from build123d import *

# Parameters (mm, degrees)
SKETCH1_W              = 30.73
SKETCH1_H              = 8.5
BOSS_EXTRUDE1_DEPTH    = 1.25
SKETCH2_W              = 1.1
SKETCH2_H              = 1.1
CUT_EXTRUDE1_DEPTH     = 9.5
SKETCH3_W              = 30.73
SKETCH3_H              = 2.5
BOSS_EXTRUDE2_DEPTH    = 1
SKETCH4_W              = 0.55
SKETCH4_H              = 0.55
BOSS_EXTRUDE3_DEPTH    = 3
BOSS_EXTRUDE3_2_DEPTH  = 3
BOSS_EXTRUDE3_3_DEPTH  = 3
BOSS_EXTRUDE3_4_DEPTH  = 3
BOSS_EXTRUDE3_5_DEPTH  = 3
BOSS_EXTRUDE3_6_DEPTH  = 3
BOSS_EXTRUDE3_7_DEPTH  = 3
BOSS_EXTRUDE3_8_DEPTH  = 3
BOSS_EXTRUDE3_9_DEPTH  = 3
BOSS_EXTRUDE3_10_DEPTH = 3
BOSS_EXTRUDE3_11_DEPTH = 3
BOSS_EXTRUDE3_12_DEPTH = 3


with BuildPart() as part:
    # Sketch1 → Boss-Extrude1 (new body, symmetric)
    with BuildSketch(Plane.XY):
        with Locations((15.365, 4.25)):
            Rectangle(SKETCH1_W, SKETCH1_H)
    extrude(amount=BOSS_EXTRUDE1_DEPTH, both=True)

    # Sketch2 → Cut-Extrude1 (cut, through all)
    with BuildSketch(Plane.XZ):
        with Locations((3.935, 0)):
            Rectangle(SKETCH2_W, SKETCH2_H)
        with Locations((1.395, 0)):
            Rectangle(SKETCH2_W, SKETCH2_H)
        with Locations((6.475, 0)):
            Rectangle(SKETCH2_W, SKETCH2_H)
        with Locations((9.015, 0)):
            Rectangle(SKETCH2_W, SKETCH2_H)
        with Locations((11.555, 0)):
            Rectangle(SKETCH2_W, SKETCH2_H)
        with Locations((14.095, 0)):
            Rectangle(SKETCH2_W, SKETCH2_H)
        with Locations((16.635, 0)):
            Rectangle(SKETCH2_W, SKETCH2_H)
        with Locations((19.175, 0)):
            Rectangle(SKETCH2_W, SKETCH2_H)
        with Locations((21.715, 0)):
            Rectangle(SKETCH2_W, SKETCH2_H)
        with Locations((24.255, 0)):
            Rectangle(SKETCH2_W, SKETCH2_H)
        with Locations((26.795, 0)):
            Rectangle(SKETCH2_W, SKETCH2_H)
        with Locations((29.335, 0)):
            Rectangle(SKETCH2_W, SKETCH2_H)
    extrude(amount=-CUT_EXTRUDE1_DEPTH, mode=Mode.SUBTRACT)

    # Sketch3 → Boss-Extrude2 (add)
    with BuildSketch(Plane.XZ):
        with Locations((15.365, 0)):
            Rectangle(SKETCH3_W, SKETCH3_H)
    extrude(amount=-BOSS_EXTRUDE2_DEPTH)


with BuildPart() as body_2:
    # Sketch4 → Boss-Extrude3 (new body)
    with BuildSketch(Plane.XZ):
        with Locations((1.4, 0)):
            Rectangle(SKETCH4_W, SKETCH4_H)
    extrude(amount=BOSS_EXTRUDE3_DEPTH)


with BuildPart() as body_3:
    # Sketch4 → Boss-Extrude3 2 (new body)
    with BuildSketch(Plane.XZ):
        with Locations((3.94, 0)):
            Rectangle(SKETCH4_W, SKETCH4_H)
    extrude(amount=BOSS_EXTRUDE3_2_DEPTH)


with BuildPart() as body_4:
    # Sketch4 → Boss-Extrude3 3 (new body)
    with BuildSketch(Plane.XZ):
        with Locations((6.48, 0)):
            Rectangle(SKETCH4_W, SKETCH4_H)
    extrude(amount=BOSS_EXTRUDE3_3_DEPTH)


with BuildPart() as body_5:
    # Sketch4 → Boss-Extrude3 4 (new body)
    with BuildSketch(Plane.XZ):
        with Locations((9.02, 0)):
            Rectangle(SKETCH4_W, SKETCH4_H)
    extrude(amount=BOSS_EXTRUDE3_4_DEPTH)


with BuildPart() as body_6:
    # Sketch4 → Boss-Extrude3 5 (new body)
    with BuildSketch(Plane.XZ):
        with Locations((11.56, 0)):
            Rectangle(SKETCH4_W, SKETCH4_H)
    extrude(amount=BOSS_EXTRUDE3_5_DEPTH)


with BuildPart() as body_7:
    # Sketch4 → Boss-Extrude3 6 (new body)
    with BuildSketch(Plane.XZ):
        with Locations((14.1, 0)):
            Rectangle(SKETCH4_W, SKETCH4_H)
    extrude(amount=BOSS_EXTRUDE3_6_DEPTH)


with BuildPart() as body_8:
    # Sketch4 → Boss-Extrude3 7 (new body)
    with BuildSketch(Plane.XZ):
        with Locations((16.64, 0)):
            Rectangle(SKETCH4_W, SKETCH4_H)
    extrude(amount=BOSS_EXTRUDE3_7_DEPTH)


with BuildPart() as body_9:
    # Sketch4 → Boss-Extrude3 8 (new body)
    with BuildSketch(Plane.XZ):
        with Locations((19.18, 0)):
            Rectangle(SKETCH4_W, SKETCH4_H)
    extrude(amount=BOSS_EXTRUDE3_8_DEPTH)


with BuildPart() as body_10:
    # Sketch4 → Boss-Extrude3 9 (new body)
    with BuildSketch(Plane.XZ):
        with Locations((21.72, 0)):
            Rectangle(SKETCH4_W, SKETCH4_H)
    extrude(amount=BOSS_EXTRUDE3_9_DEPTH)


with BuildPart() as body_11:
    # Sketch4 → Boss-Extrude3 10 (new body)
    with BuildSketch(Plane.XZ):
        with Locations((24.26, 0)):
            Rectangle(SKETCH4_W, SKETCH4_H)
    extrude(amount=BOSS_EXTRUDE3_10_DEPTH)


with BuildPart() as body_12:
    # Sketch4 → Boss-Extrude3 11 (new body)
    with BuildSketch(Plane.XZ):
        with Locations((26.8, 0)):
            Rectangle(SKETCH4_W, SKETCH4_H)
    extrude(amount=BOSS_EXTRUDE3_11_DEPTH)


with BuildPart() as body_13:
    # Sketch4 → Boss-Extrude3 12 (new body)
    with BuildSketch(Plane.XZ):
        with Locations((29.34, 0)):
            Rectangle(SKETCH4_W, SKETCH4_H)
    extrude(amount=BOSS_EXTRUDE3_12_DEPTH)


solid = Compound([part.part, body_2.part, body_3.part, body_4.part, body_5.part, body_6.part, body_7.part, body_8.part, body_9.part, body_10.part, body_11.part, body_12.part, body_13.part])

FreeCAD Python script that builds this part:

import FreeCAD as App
import Part
import Sketcher
from FreeCAD import Vector

doc = App.newDocument("Part")
params = doc.addObject("Spreadsheet::Sheet", "Params")
for row, (alias, value) in enumerate([
    ("sketch1_height", "8.5 mm"),
    ("sketch1_width", "30.73 mm"),
    ("pad1_length", "2.5 mm"),
    ("sketch2_width", "1.1 mm"),
    ("sketch3_height", "2.5 mm"),
    ("sketch3_width", "30.73 mm"),
    ("pad2_length", "1 mm"),
    ("sketch4_width", "0.55 mm"),
    ("pad3_length", "3 mm"),
    ("sketch5_width", "0.55 mm"),
    ("pad4_length", "3 mm"),
    ("sketch6_width", "0.55 mm"),
    ("pad5_length", "3 mm"),
    ("sketch7_width", "0.55 mm"),
    ("pad6_length", "3 mm"),
    ("sketch8_width", "0.55 mm"),
    ("pad7_length", "3 mm"),
    ("sketch9_width", "0.55 mm"),
    ("pad8_length", "3 mm"),
    ("sketch10_width", "0.55 mm"),
    ("pad9_length", "3 mm"),
    ("sketch11_width", "0.55 mm"),
    ("pad10_length", "3 mm"),
    ("sketch12_width", "0.55 mm"),
    ("pad11_length", "3 mm"),
    ("sketch13_width", "0.55 mm"),
    ("pad12_length", "3 mm"),
    ("sketch14_width", "0.55 mm"),
    ("pad13_length", "3 mm"),
    ("sketch15_width", "0.55 mm"),
    ("pad14_length", "3 mm"),
], start=1):
    params.set(f"A{row}", alias)
    params.set(f"B{row}", "=" + value)
    params.setAlias(f"B{row}", alias)

body = doc.addObject("PartDesign::Body", "Body")

sketch1 = doc.addObject("Sketcher::SketchObject", "Sketch")
body.addObject(sketch1)
sketch1.AttachmentSupport = (doc.XY_Plane, [""])
sketch1.MapMode = "FlatFace"
sketch1.addGeometry([
    Part.LineSegment(Vector(0, 8.5, 0), Vector(0, 0, 0)),
    Part.LineSegment(Vector(0, 0, 0), Vector(30.73, 0, 0)),
    Part.LineSegment(Vector(30.73, 0, 0), Vector(30.73, 8.5, 0)),
    Part.LineSegment(Vector(30.73, 8.5, 0), Vector(0, 8.5, 0)),
], False)
sketch1.addConstraint([
    Sketcher.Constraint("Coincident", 0, 2, 1, 1),
    Sketcher.Constraint("Coincident", 1, 2, 2, 1),
    Sketcher.Constraint("Coincident", 2, 2, 3, 1),
    Sketcher.Constraint("Coincident", 3, 2, 0, 1),
    Sketcher.Constraint("Vertical", 0),
    Sketcher.Constraint("Horizontal", 1),
    Sketcher.Constraint("Vertical", 2),
    Sketcher.Constraint("Horizontal", 3),
    Sketcher.Constraint("Coincident", 0, 2, -1, 1),
    Sketcher.Constraint("DistanceY", 0, 2, 0, 1, 8.5),
    Sketcher.Constraint("DistanceX", 1, 1, 1, 2, 30.73),
])
sketch1.setExpression("Constraints[9]", "Params.sketch1_height")
sketch1.setExpression("Constraints[10]", "Params.sketch1_width")
pad1 = doc.addObject("PartDesign::Pad", "Pad")
body.addObject(pad1)
pad1.Profile = sketch1
pad1.setExpression("Length", "Params.pad1_length")
pad1.Midplane = True

sketch2 = doc.addObject("Sketcher::SketchObject", "Sketch001")
body.addObject(sketch2)
sketch2.AttachmentSupport = (doc.XZ_Plane, [""])
sketch2.MapMode = "FlatFace"
sketch2.addGeometry([
    Part.LineSegment(Vector(3.385, 0.55, 0), Vector(3.385, -0.55, 0)),
    Part.LineSegment(Vector(3.385, -0.55, 0), Vector(4.485, -0.55, 0)),
    Part.LineSegment(Vector(4.485, -0.55, 0), Vector(4.485, 0.55, 0)),
    Part.LineSegment(Vector(4.485, 0.55, 0), Vector(3.385, 0.55, 0)),
    Part.LineSegment(Vector(0.845, 0.55, 0), Vector(0.845, -0.55, 0)),
    Part.LineSegment(Vector(0.845, -0.55, 0), Vector(1.945, -0.55, 0)),
    Part.LineSegment(Vector(1.945, -0.55, 0), Vector(1.945, 0.55, 0)),
    Part.LineSegment(Vector(1.945, 0.55, 0), Vector(0.845, 0.55, 0)),
    Part.LineSegment(Vector(5.925, 0.55, 0), Vector(5.925, -0.55, 0)),
    Part.LineSegment(Vector(5.925, -0.55, 0), Vector(7.025, -0.55, 0)),
    Part.LineSegment(Vector(7.025, -0.55, 0), Vector(7.025, 0.55, 0)),
    Part.LineSegment(Vector(7.025, 0.55, 0), Vector(5.925, 0.55, 0)),
    Part.LineSegment(Vector(8.465, 0.55, 0), Vector(8.465, -0.55, 0)),
    Part.LineSegment(Vector(8.465, -0.55, 0), Vector(9.565, -0.55, 0)),
    Part.LineSegment(Vector(9.565, -0.55, 0), Vector(9.565, 0.55, 0)),
    Part.LineSegment(Vector(9.565, 0.55, 0), Vector(8.465, 0.55, 0)),
    Part.LineSegment(Vector(11.005, 0.55, 0), Vector(11.005, -0.55, 0)),
    Part.LineSegment(Vector(11.005, -0.55, 0), Vector(12.105, -0.55, 0)),
    Part.LineSegment(Vector(12.105, -0.55, 0), Vector(12.105, 0.55, 0)),
    Part.LineSegment(Vector(12.105, 0.55, 0), Vector(11.005, 0.55, 0)),
    Part.LineSegment(Vector(13.545, 0.55, 0), Vector(13.545, -0.55, 0)),
    Part.LineSegment(Vector(13.545, -0.55, 0), Vector(14.645, -0.55, 0)),
    Part.LineSegment(Vector(14.645, -0.55, 0), Vector(14.645, 0.55, 0)),
    Part.LineSegment(Vector(14.645, 0.55, 0), Vector(13.545, 0.55, 0)),
    Part.LineSegment(Vector(16.085, 0.55, 0), Vector(16.085, -0.55, 0)),
    Part.LineSegment(Vector(16.085, -0.55, 0), Vector(17.185, -0.55, 0)),
    Part.LineSegment(Vector(17.185, -0.55, 0), Vector(17.185, 0.55, 0)),
    Part.LineSegment(Vector(17.185, 0.55, 0), Vector(16.085, 0.55, 0)),
    Part.LineSegment(Vector(18.625, 0.55, 0), Vector(18.625, -0.55, 0)),
    Part.LineSegment(Vector(18.625, -0.55, 0), Vector(19.725, -0.55, 0)),
    Part.LineSegment(Vector(19.725, -0.55, 0), Vector(19.725, 0.55, 0)),
    Part.LineSegment(Vector(19.725, 0.55, 0), Vector(18.625, 0.55, 0)),
    Part.LineSegment(Vector(21.165, 0.55, 0), Vector(21.165, -0.55, 0)),
    Part.LineSegment(Vector(21.165, -0.55, 0), Vector(22.265, -0.55, 0)),
    Part.LineSegment(Vector(22.265, -0.55, 0), Vector(22.265, 0.55, 0)),
    Part.LineSegment(Vector(22.265, 0.55, 0), Vector(21.165, 0.55, 0)),
    Part.LineSegment(Vector(23.705, 0.55, 0), Vector(23.705, -0.55, 0)),
    Part.LineSegment(Vector(23.705, -0.55, 0), Vector(24.805, -0.55, 0)),
    Part.LineSegment(Vector(24.805, -0.55, 0), Vector(24.805, 0.55, 0)),
    Part.LineSegment(Vector(24.805, 0.55, 0), Vector(23.705, 0.55, 0)),
    Part.LineSegment(Vector(26.245, 0.55, 0), Vector(26.245, -0.55, 0)),
    Part.LineSegment(Vector(26.245, -0.55, 0), Vector(27.345, -0.55, 0)),
    Part.LineSegment(Vector(27.345, -0.55, 0), Vector(27.345, 0.55, 0)),
    Part.LineSegment(Vector(27.345, 0.55, 0), Vector(26.245, 0.55, 0)),
    Part.LineSegment(Vector(28.785, 0.55, 0), Vector(28.785, -0.55, 0)),
    Part.LineSegment(Vector(28.785, -0.55, 0), Vector(29.885, -0.55, 0)),
    Part.LineSegment(Vector(29.885, -0.55, 0), Vector(29.885, 0.55, 0)),
    Part.LineSegment(Vector(29.885, 0.55, 0), Vector(28.785, 0.55, 0)),
], False)
sketch2.addConstraint([
    Sketcher.Constraint("Coincident", 0, 2, 1, 1),
    Sketcher.Constraint("Coincident", 1, 2, 2, 1),
    Sketcher.Constraint("Coincident", 2, 2, 3, 1),
    Sketcher.Constraint("Coincident", 3, 2, 0, 1),
    Sketcher.Constraint("Coincident", 4, 2, 5, 1),
    Sketcher.Constraint("Coincident", 5, 2, 6, 1),
    Sketcher.Constraint("Coincident", 6, 2, 7, 1),
    Sketcher.Constraint("Coincident", 7, 2, 4, 1),
    Sketcher.Constraint("Coincident", 8, 2, 9, 1),
    Sketcher.Constraint("Coincident", 9, 2, 10, 1),
    Sketcher.Constraint("Coincident", 10, 2, 11, 1),
    Sketcher.Constraint("Coincident", 11, 2, 8, 1),
    Sketcher.Constraint("Coincident", 12, 2, 13, 1),
    Sketcher.Constraint("Coincident", 13, 2, 14, 1),
    Sketcher.Constraint("Coincident", 14, 2, 15, 1),
    Sketcher.Constraint("Coincident", 15, 2, 12, 1),
    Sketcher.Constraint("Coincident", 16, 2, 17, 1),
    Sketcher.Constraint("Coincident", 17, 2, 18, 1),
    Sketcher.Constraint("Coincident", 18, 2, 19, 1),
    Sketcher.Constraint("Coincident", 19, 2, 16, 1),
    Sketcher.Constraint("Coincident", 20, 2, 21, 1),
    Sketcher.Constraint("Coincident", 21, 2, 22, 1),
    Sketcher.Constraint("Coincident", 22, 2, 23, 1),
    Sketcher.Constraint("Coincident", 23, 2, 20, 1),
    Sketcher.Constraint("Coincident", 24, 2, 25, 1),
    Sketcher.Constraint("Coincident", 25, 2, 26, 1),
    Sketcher.Constraint("Coincident", 26, 2, 27, 1),
    Sketcher.Constraint("Coincident", 27, 2, 24, 1),
    Sketcher.Constraint("Coincident", 28, 2, 29, 1),
    Sketcher.Constraint("Coincident", 29, 2, 30, 1),
    Sketcher.Constraint("Coincident", 30, 2, 31, 1),
    Sketcher.Constraint("Coincident", 31, 2, 28, 1),
    Sketcher.Constraint("Coincident", 32, 2, 33, 1),
    Sketcher.Constraint("Coincident", 33, 2, 34, 1),
    Sketcher.Constraint("Coincident", 34, 2, 35, 1),
    Sketcher.Constraint("Coincident", 35, 2, 32, 1),
    Sketcher.Constraint("Coincident", 36, 2, 37, 1),
    Sketcher.Constraint("Coincident", 37, 2, 38, 1),
    Sketcher.Constraint("Coincident", 38, 2, 39, 1),
    Sketcher.Constraint("Coincident", 39, 2, 36, 1),
    Sketcher.Constraint("Coincident", 40, 2, 41, 1),
    Sketcher.Constraint("Coincident", 41, 2, 42, 1),
    Sketcher.Constraint("Coincident", 42, 2, 43, 1),
    Sketcher.Constraint("Coincident", 43, 2, 40, 1),
    Sketcher.Constraint("Coincident", 44, 2, 45, 1),
    Sketcher.Constraint("Coincident", 45, 2, 46, 1),
    Sketcher.Constraint("Coincident", 46, 2, 47, 1),
    Sketcher.Constraint("Coincident", 47, 2, 44, 1),
    Sketcher.Constraint("Vertical", 0),
    Sketcher.Constraint("Horizontal", 1),
    Sketcher.Constraint("Vertical", 2),
    Sketcher.Constraint("Horizontal", 3),
    Sketcher.Constraint("Vertical", 4),
    Sketcher.Constraint("Horizontal", 5),
    Sketcher.Constraint("Vertical", 6),
    Sketcher.Constraint("Horizontal", 7),
    Sketcher.Constraint("Vertical", 8),
    Sketcher.Constraint("Horizontal", 9),
    Sketcher.Constraint("Vertical", 10),
    Sketcher.Constraint("Horizontal", 11),
    Sketcher.Constraint("Vertical", 12),
    Sketcher.Constraint("Horizontal", 13),
    Sketcher.Constraint("Vertical", 14),
    Sketcher.Constraint("Horizontal", 15),
    Sketcher.Constraint("Vertical", 16),
    Sketcher.Constraint("Horizontal", 17),
    Sketcher.Constraint("Vertical", 18),
    Sketcher.Constraint("Horizontal", 19),
    Sketcher.Constraint("Vertical", 20),
    Sketcher.Constraint("Horizontal", 21),
    Sketcher.Constraint("Vertical", 22),
    Sketcher.Constraint("Horizontal", 23),
    Sketcher.Constraint("Vertical", 24),
    Sketcher.Constraint("Horizontal", 25),
    Sketcher.Constraint("Vertical", 26),
    Sketcher.Constraint("Horizontal", 27),
    Sketcher.Constraint("Vertical", 28),
    Sketcher.Constraint("Horizontal", 29),
    Sketcher.Constraint("Vertical", 30),
    Sketcher.Constraint("Horizontal", 31),
    Sketcher.Constraint("Vertical", 32),
    Sketcher.Constraint("Horizontal", 33),
    Sketcher.Constraint("Vertical", 34),
    Sketcher.Constraint("Horizontal", 35),
    Sketcher.Constraint("Vertical", 36),
    Sketcher.Constraint("Horizontal", 37),
    Sketcher.Constraint("Vertical", 38),
    Sketcher.Constraint("Horizontal", 39),
    Sketcher.Constraint("Vertical", 40),
    Sketcher.Constraint("Horizontal", 41),
    Sketcher.Constraint("Vertical", 42),
    Sketcher.Constraint("Horizontal", 43),
    Sketcher.Constraint("Vertical", 44),
    Sketcher.Constraint("Horizontal", 45),
    Sketcher.Constraint("Vertical", 46),
    Sketcher.Constraint("Horizontal", 47),
    Sketcher.Constraint("Horizontal", 1, 2, 4, 2),
    Sketcher.Constraint("Horizontal", 3, 2, 6, 2),
    Sketcher.Constraint("Horizontal", 5, 2, 8, 2),
    Sketcher.Constraint("Horizontal", 7, 2, 10, 2),
    Sketcher.Constraint("Horizontal", 9, 2, 12, 2),
    Sketcher.Constraint("Horizontal", 11, 2, 14, 2),
    Sketcher.Constraint("Horizontal", 13, 2, 16, 2),
    Sketcher.Constraint("Horizontal", 15, 2, 18, 2),
    Sketcher.Constraint("Horizontal", 17, 2, 20, 2),
    Sketcher.Constraint("Horizontal", 19, 2, 22, 2),
    Sketcher.Constraint("Horizontal", 21, 2, 24, 2),
    Sketcher.Constraint("Horizontal", 23, 2, 26, 2),
    Sketcher.Constraint("Horizontal", 25, 2, 28, 2),
    Sketcher.Constraint("Horizontal", 27, 2, 30, 2),
    Sketcher.Constraint("Horizontal", 29, 2, 32, 2),
    Sketcher.Constraint("Horizontal", 31, 2, 34, 2),
    Sketcher.Constraint("Horizontal", 33, 2, 36, 2),
    Sketcher.Constraint("Horizontal", 35, 2, 38, 2),
    Sketcher.Constraint("Horizontal", 37, 2, 40, 2),
    Sketcher.Constraint("Horizontal", 39, 2, 42, 2),
    Sketcher.Constraint("Horizontal", 41, 2, 44, 2),
    Sketcher.Constraint("Horizontal", 43, 2, 46, 2),
    Sketcher.Constraint("Equal", 3, 5),
    Sketcher.Constraint("Equal", 7, 9),
    Sketcher.Constraint("Equal", 11, 13),
    Sketcher.Constraint("Equal", 15, 17),
    Sketcher.Constraint("Equal", 19, 21),
    Sketcher.Constraint("Equal", 23, 25),
    Sketcher.Constraint("Equal", 27, 29),
    Sketcher.Constraint("Equal", 31, 33),
    Sketcher.Constraint("Equal", 35, 37),
    Sketcher.Constraint("Equal", 39, 41),
    Sketcher.Constraint("Equal", 43, 45),
    Sketcher.Constraint("Equal", 47, 0),
    Sketcher.Constraint("DistanceX", 1, 1, 1, 2, 1.1),
    Sketcher.Constraint("DistanceY", 0, 2, -1, 1, 0.55),
    Sketcher.Constraint("DistanceX", 4, 2, 0, 2, 2.54),
    Sketcher.Constraint("DistanceX", 1, 2, 8, 2, 1.44),
    Sketcher.Constraint("DistanceX", 9, 2, 12, 2, 1.44),
    Sketcher.Constraint("DistanceX", 13, 2, 16, 2, 1.44),
    Sketcher.Constraint("DistanceX", 17, 2, 20, 2, 1.44),
    Sketcher.Constraint("DistanceX", 21, 2, 24, 2, 1.44),
    Sketcher.Constraint("DistanceX", 25, 2, 28, 2, 1.44),
    Sketcher.Constraint("DistanceX", 29, 2, 32, 2, 1.44),
    Sketcher.Constraint("DistanceX", 33, 2, 36, 2, 1.44),
    Sketcher.Constraint("DistanceX", 37, 2, 40, 2, 1.44),
    Sketcher.Constraint("DistanceX", 41, 2, 44, 2, 1.44),
    Sketcher.Constraint("DistanceX", -1, 1, 0, 2, 3.385),
])
sketch2.setExpression("Constraints[130]", "Params.sketch2_width")
pocket1 = doc.addObject("PartDesign::Pocket", "Pocket")
body.addObject(pocket1)
pocket1.Profile = sketch2
pocket1.Type = "ThroughAll"

sketch3 = doc.addObject("Sketcher::SketchObject", "Sketch002")
body.addObject(sketch3)
sketch3.AttachmentSupport = (doc.XZ_Plane, [""])
sketch3.MapMode = "FlatFace"
sketch3.addGeometry([
    Part.LineSegment(Vector(0, 1.25, 0), Vector(0, -1.25, 0)),
    Part.LineSegment(Vector(0, -1.25, 0), Vector(30.73, -1.25, 0)),
    Part.LineSegment(Vector(30.73, -1.25, 0), Vector(30.73, 1.25, 0)),
    Part.LineSegment(Vector(30.73, 1.25, 0), Vector(0, 1.25, 0)),
], False)
sketch3.addConstraint([
    Sketcher.Constraint("Coincident", 0, 2, 1, 1),
    Sketcher.Constraint("Coincident", 1, 2, 2, 1),
    Sketcher.Constraint("Coincident", 2, 2, 3, 1),
    Sketcher.Constraint("Coincident", 3, 2, 0, 1),
    Sketcher.Constraint("Vertical", 0),
    Sketcher.Constraint("Horizontal", 1),
    Sketcher.Constraint("Vertical", 2),
    Sketcher.Constraint("Horizontal", 3),
    Sketcher.Constraint("Symmetric", 0, 2, 3, 2, -1, 1),
    Sketcher.Constraint("DistanceY", 0, 2, 0, 1, 2.5),
    Sketcher.Constraint("DistanceX", 1, 1, 1, 2, 30.73),
])
sketch3.setExpression("Constraints[9]", "Params.sketch3_height")
sketch3.setExpression("Constraints[10]", "Params.sketch3_width")
pad2 = doc.addObject("PartDesign::Pad", "Pad001")
body.addObject(pad2)
pad2.Profile = sketch3
pad2.setExpression("Length", "Params.pad2_length")
pad2.Reversed = True
body2 = doc.addObject("PartDesign::Body", "Body001")

sketch4 = doc.addObject("Sketcher::SketchObject", "Sketch003")
body2.addObject(sketch4)
sketch4.AttachmentSupport = (doc.getObject("XZ_Plane001"), [""])
sketch4.MapMode = "FlatFace"
sketch4.addGeometry([
    Part.LineSegment(Vector(1.125, 0.275, 0), Vector(1.125, -0.275, 0)),
    Part.LineSegment(Vector(1.125, -0.275, 0), Vector(1.675, -0.275, 0)),
    Part.LineSegment(Vector(1.675, -0.275, 0), Vector(1.675, 0.275, 0)),
    Part.LineSegment(Vector(1.675, 0.275, 0), Vector(1.125, 0.275, 0)),
], False)
sketch4.addConstraint([
    Sketcher.Constraint("Coincident", 0, 2, 1, 1),
    Sketcher.Constraint("Coincident", 1, 2, 2, 1),
    Sketcher.Constraint("Coincident", 2, 2, 3, 1),
    Sketcher.Constraint("Coincident", 3, 2, 0, 1),
    Sketcher.Constraint("Vertical", 0),
    Sketcher.Constraint("Horizontal", 1),
    Sketcher.Constraint("Vertical", 2),
    Sketcher.Constraint("Horizontal", 3),
    Sketcher.Constraint("Equal", 3, 0),
    Sketcher.Constraint("DistanceX", 1, 1, 1, 2, 0.55),
    Sketcher.Constraint("DistanceX", -1, 1, 0, 2, 1.125),
    Sketcher.Constraint("DistanceY", 0, 2, -1, 1, 0.275),
])
sketch4.setExpression("Constraints[9]", "Params.sketch4_width")
pad3 = doc.addObject("PartDesign::Pad", "Pad002")
body2.addObject(pad3)
pad3.Profile = sketch4
pad3.setExpression("Length", "Params.pad3_length")
body3 = doc.addObject("PartDesign::Body", "Body002")

sketch5 = doc.addObject("Sketcher::SketchObject", "Sketch004")
body3.addObject(sketch5)
sketch5.AttachmentSupport = (doc.getObject("XZ_Plane002"), [""])
sketch5.MapMode = "FlatFace"
sketch5.addGeometry([
    Part.LineSegment(Vector(3.665, 0.275, 0), Vector(3.665, -0.275, 0)),
    Part.LineSegment(Vector(3.665, -0.275, 0), Vector(4.215, -0.275, 0)),
    Part.LineSegment(Vector(4.215, -0.275, 0), Vector(4.215, 0.275, 0)),
    Part.LineSegment(Vector(4.215, 0.275, 0), Vector(3.665, 0.275, 0)),
], False)
sketch5.addConstraint([
    Sketcher.Constraint("Coincident", 0, 2, 1, 1),
    Sketcher.Constraint("Coincident", 1, 2, 2, 1),
    Sketcher.Constraint("Coincident", 2, 2, 3, 1),
    Sketcher.Constraint("Coincident", 3, 2, 0, 1),
    Sketcher.Constraint("Vertical", 0),
    Sketcher.Constraint("Horizontal", 1),
    Sketcher.Constraint("Vertical", 2),
    Sketcher.Constraint("Horizontal", 3),
    Sketcher.Constraint("Equal", 3, 0),
    Sketcher.Constraint("DistanceX", 1, 1, 1, 2, 0.55),
    Sketcher.Constraint("DistanceX", -1, 1, 0, 2, 3.665),
    Sketcher.Constraint("DistanceY", 0, 2, -1, 1, 0.275),
])
sketch5.setExpression("Constraints[9]", "Params.sketch5_width")
pad4 = doc.addObject("PartDesign::Pad", "Pad003")
body3.addObject(pad4)
pad4.Profile = sketch5
pad4.setExpression("Length", "Params.pad4_length")
body4 = doc.addObject("PartDesign::Body", "Body003")

sketch6 = doc.addObject("Sketcher::SketchObject", "Sketch005")
body4.addObject(sketch6)
sketch6.AttachmentSupport = (doc.getObject("XZ_Plane003"), [""])
sketch6.MapMode = "FlatFace"
sketch6.addGeometry([
    Part.LineSegment(Vector(6.205, 0.275, 0), Vector(6.205, -0.275, 0)),
    Part.LineSegment(Vector(6.205, -0.275, 0), Vector(6.755, -0.275, 0)),
    Part.LineSegment(Vector(6.755, -0.275, 0), Vector(6.755, 0.275, 0)),
    Part.LineSegment(Vector(6.755, 0.275, 0), Vector(6.205, 0.275, 0)),
], False)
sketch6.addConstraint([
    Sketcher.Constraint("Coincident", 0, 2, 1, 1),
    Sketcher.Constraint("Coincident", 1, 2, 2, 1),
    Sketcher.Constraint("Coincident", 2, 2, 3, 1),
    Sketcher.Constraint("Coincident", 3, 2, 0, 1),
    Sketcher.Constraint("Vertical", 0),
    Sketcher.Constraint("Horizontal", 1),
    Sketcher.Constraint("Vertical", 2),
    Sketcher.Constraint("Horizontal", 3),
    Sketcher.Constraint("Equal", 3, 0),
    Sketcher.Constraint("DistanceX", 1, 1, 1, 2, 0.55),
    Sketcher.Constraint("DistanceX", -1, 1, 0, 2, 6.205),
    Sketcher.Constraint("DistanceY", 0, 2, -1, 1, 0.275),
])
sketch6.setExpression("Constraints[9]", "Params.sketch6_width")
pad5 = doc.addObject("PartDesign::Pad", "Pad004")
body4.addObject(pad5)
pad5.Profile = sketch6
pad5.setExpression("Length", "Params.pad5_length")
body5 = doc.addObject("PartDesign::Body", "Body004")

sketch7 = doc.addObject("Sketcher::SketchObject", "Sketch006")
body5.addObject(sketch7)
sketch7.AttachmentSupport = (doc.getObject("XZ_Plane004"), [""])
sketch7.MapMode = "FlatFace"
sketch7.addGeometry([
    Part.LineSegment(Vector(8.745, 0.275, 0), Vector(8.745, -0.275, 0)),
    Part.LineSegment(Vector(8.745, -0.275, 0), Vector(9.295, -0.275, 0)),
    Part.LineSegment(Vector(9.295, -0.275, 0), Vector(9.295, 0.275, 0)),
    Part.LineSegment(Vector(9.295, 0.275, 0), Vector(8.745, 0.275, 0)),
], False)
sketch7.addConstraint([
    Sketcher.Constraint("Coincident", 0, 2, 1, 1),
    Sketcher.Constraint("Coincident", 1, 2, 2, 1),
    Sketcher.Constraint("Coincident", 2, 2, 3, 1),
    Sketcher.Constraint("Coincident", 3, 2, 0, 1),
    Sketcher.Constraint("Vertical", 0),
    Sketcher.Constraint("Horizontal", 1),
    Sketcher.Constraint("Vertical", 2),
    Sketcher.Constraint("Horizontal", 3),
    Sketcher.Constraint("Equal", 3, 0),
    Sketcher.Constraint("DistanceX", 1, 1, 1, 2, 0.55),
    Sketcher.Constraint("DistanceX", -1, 1, 0, 2, 8.745),
    Sketcher.Constraint("DistanceY", 0, 2, -1, 1, 0.275),
])
sketch7.setExpression("Constraints[9]", "Params.sketch7_width")
pad6 = doc.addObject("PartDesign::Pad", "Pad005")
body5.addObject(pad6)
pad6.Profile = sketch7
pad6.setExpression("Length", "Params.pad6_length")
body6 = doc.addObject("PartDesign::Body", "Body005")

sketch8 = doc.addObject("Sketcher::SketchObject", "Sketch007")
body6.addObject(sketch8)
sketch8.AttachmentSupport = (doc.getObject("XZ_Plane005"), [""])
sketch8.MapMode = "FlatFace"
sketch8.addGeometry([
    Part.LineSegment(Vector(11.285, 0.275, 0), Vector(11.285, -0.275, 0)),
    Part.LineSegment(Vector(11.285, -0.275, 0), Vector(11.835, -0.275, 0)),
    Part.LineSegment(Vector(11.835, -0.275, 0), Vector(11.835, 0.275, 0)),
    Part.LineSegment(Vector(11.835, 0.275, 0), Vector(11.285, 0.275, 0)),
], False)
sketch8.addConstraint([
    Sketcher.Constraint("Coincident", 0, 2, 1, 1),
    Sketcher.Constraint("Coincident", 1, 2, 2, 1),
    Sketcher.Constraint("Coincident", 2, 2, 3, 1),
    Sketcher.Constraint("Coincident", 3, 2, 0, 1),
    Sketcher.Constraint("Vertical", 0),
    Sketcher.Constraint("Horizontal", 1),
    Sketcher.Constraint("Vertical", 2),
    Sketcher.Constraint("Horizontal", 3),
    Sketcher.Constraint("Equal", 3, 0),
    Sketcher.Constraint("DistanceX", 1, 1, 1, 2, 0.55),
    Sketcher.Constraint("DistanceX", -1, 1, 0, 2, 11.285),
    Sketcher.Constraint("DistanceY", 0, 2, -1, 1, 0.275),
])
sketch8.setExpression("Constraints[9]", "Params.sketch8_width")
pad7 = doc.addObject("PartDesign::Pad", "Pad006")
body6.addObject(pad7)
pad7.Profile = sketch8
pad7.setExpression("Length", "Params.pad7_length")
body7 = doc.addObject("PartDesign::Body", "Body006")

sketch9 = doc.addObject("Sketcher::SketchObject", "Sketch008")
body7.addObject(sketch9)
sketch9.AttachmentSupport = (doc.getObject("XZ_Plane006"), [""])
sketch9.MapMode = "FlatFace"
sketch9.addGeometry([
    Part.LineSegment(Vector(13.825, 0.275, 0), Vector(13.825, -0.275, 0)),
    Part.LineSegment(Vector(13.825, -0.275, 0), Vector(14.375, -0.275, 0)),
    Part.LineSegment(Vector(14.375, -0.275, 0), Vector(14.375, 0.275, 0)),
    Part.LineSegment(Vector(14.375, 0.275, 0), Vector(13.825, 0.275, 0)),
], False)
sketch9.addConstraint([
    Sketcher.Constraint("Coincident", 0, 2, 1, 1),
    Sketcher.Constraint("Coincident", 1, 2, 2, 1),
    Sketcher.Constraint("Coincident", 2, 2, 3, 1),
    Sketcher.Constraint("Coincident", 3, 2, 0, 1),
    Sketcher.Constraint("Vertical", 0),
    Sketcher.Constraint("Horizontal", 1),
    Sketcher.Constraint("Vertical", 2),
    Sketcher.Constraint("Horizontal", 3),
    Sketcher.Constraint("Equal", 3, 0),
    Sketcher.Constraint("DistanceX", 1, 1, 1, 2, 0.55),
    Sketcher.Constraint("DistanceX", -1, 1, 0, 2, 13.825),
    Sketcher.Constraint("DistanceY", 0, 2, -1, 1, 0.275),
])
sketch9.setExpression("Constraints[9]", "Params.sketch9_width")
pad8 = doc.addObject("PartDesign::Pad", "Pad007")
body7.addObject(pad8)
pad8.Profile = sketch9
pad8.setExpression("Length", "Params.pad8_length")
body8 = doc.addObject("PartDesign::Body", "Body007")

sketch10 = doc.addObject("Sketcher::SketchObject", "Sketch009")
body8.addObject(sketch10)
sketch10.AttachmentSupport = (doc.getObject("XZ_Plane007"), [""])
sketch10.MapMode = "FlatFace"
sketch10.addGeometry([
    Part.LineSegment(Vector(16.365, 0.275, 0), Vector(16.365, -0.275, 0)),
    Part.LineSegment(Vector(16.365, -0.275, 0), Vector(16.915, -0.275, 0)),
    Part.LineSegment(Vector(16.915, -0.275, 0), Vector(16.915, 0.275, 0)),
    Part.LineSegment(Vector(16.915, 0.275, 0), Vector(16.365, 0.275, 0)),
], False)
sketch10.addConstraint([
    Sketcher.Constraint("Coincident", 0, 2, 1, 1),
    Sketcher.Constraint("Coincident", 1, 2, 2, 1),
    Sketcher.Constraint("Coincident", 2, 2, 3, 1),
    Sketcher.Constraint("Coincident", 3, 2, 0, 1),
    Sketcher.Constraint("Vertical", 0),
    Sketcher.Constraint("Horizontal", 1),
    Sketcher.Constraint("Vertical", 2),
    Sketcher.Constraint("Horizontal", 3),
    Sketcher.Constraint("Equal", 3, 0),
    Sketcher.Constraint("DistanceX", 1, 1, 1, 2, 0.55),
    Sketcher.Constraint("DistanceX", -1, 1, 0, 2, 16.365),
    Sketcher.Constraint("DistanceY", 0, 2, -1, 1, 0.275),
])
sketch10.setExpression("Constraints[9]", "Params.sketch10_width")
pad9 = doc.addObject("PartDesign::Pad", "Pad008")
body8.addObject(pad9)
pad9.Profile = sketch10
pad9.setExpression("Length", "Params.pad9_length")
body9 = doc.addObject("PartDesign::Body", "Body008")

sketch11 = doc.addObject("Sketcher::SketchObject", "Sketch010")
body9.addObject(sketch11)
sketch11.AttachmentSupport = (doc.getObject("XZ_Plane008"), [""])
sketch11.MapMode = "FlatFace"
sketch11.addGeometry([
    Part.LineSegment(Vector(18.905, 0.275, 0), Vector(18.905, -0.275, 0)),
    Part.LineSegment(Vector(18.905, -0.275, 0), Vector(19.455, -0.275, 0)),
    Part.LineSegment(Vector(19.455, -0.275, 0), Vector(19.455, 0.275, 0)),
    Part.LineSegment(Vector(19.455, 0.275, 0), Vector(18.905, 0.275, 0)),
], False)
sketch11.addConstraint([
    Sketcher.Constraint("Coincident", 0, 2, 1, 1),
    Sketcher.Constraint("Coincident", 1, 2, 2, 1),
    Sketcher.Constraint("Coincident", 2, 2, 3, 1),
    Sketcher.Constraint("Coincident", 3, 2, 0, 1),
    Sketcher.Constraint("Vertical", 0),
    Sketcher.Constraint("Horizontal", 1),
    Sketcher.Constraint("Vertical", 2),
    Sketcher.Constraint("Horizontal", 3),
    Sketcher.Constraint("Equal", 3, 0),
    Sketcher.Constraint("DistanceX", 1, 1, 1, 2, 0.55),
    Sketcher.Constraint("DistanceX", -1, 1, 0, 2, 18.905),
    Sketcher.Constraint("DistanceY", 0, 2, -1, 1, 0.275),
])
sketch11.setExpression("Constraints[9]", "Params.sketch11_width")
pad10 = doc.addObject("PartDesign::Pad", "Pad009")
body9.addObject(pad10)
pad10.Profile = sketch11
pad10.setExpression("Length", "Params.pad10_length")
body10 = doc.addObject("PartDesign::Body", "Body009")

sketch12 = doc.addObject("Sketcher::SketchObject", "Sketch011")
body10.addObject(sketch12)
sketch12.AttachmentSupport = (doc.getObject("XZ_Plane009"), [""])
sketch12.MapMode = "FlatFace"
sketch12.addGeometry([
    Part.LineSegment(Vector(21.445, 0.275, 0), Vector(21.445, -0.275, 0)),
    Part.LineSegment(Vector(21.445, -0.275, 0), Vector(21.995, -0.275, 0)),
    Part.LineSegment(Vector(21.995, -0.275, 0), Vector(21.995, 0.275, 0)),
    Part.LineSegment(Vector(21.995, 0.275, 0), Vector(21.445, 0.275, 0)),
], False)
sketch12.addConstraint([
    Sketcher.Constraint("Coincident", 0, 2, 1, 1),
    Sketcher.Constraint("Coincident", 1, 2, 2, 1),
    Sketcher.Constraint("Coincident", 2, 2, 3, 1),
    Sketcher.Constraint("Coincident", 3, 2, 0, 1),
    Sketcher.Constraint("Vertical", 0),
    Sketcher.Constraint("Horizontal", 1),
    Sketcher.Constraint("Vertical", 2),
    Sketcher.Constraint("Horizontal", 3),
    Sketcher.Constraint("Equal", 3, 0),
    Sketcher.Constraint("DistanceX", 1, 1, 1, 2, 0.55),
    Sketcher.Constraint("DistanceX", -1, 1, 0, 2, 21.445),
    Sketcher.Constraint("DistanceY", 0, 2, -1, 1, 0.275),
])
sketch12.setExpression("Constraints[9]", "Params.sketch12_width")
pad11 = doc.addObject("PartDesign::Pad", "Pad010")
body10.addObject(pad11)
pad11.Profile = sketch12
pad11.setExpression("Length", "Params.pad11_length")
body11 = doc.addObject("PartDesign::Body", "Body010")

sketch13 = doc.addObject("Sketcher::SketchObject", "Sketch012")
body11.addObject(sketch13)
sketch13.AttachmentSupport = (doc.getObject("XZ_Plane010"), [""])
sketch13.MapMode = "FlatFace"
sketch13.addGeometry([
    Part.LineSegment(Vector(23.985, 0.275, 0), Vector(23.985, -0.275, 0)),
    Part.LineSegment(Vector(23.985, -0.275, 0), Vector(24.535, -0.275, 0)),
    Part.LineSegment(Vector(24.535, -0.275, 0), Vector(24.535, 0.275, 0)),
    Part.LineSegment(Vector(24.535, 0.275, 0), Vector(23.985, 0.275, 0)),
], False)
sketch13.addConstraint([
    Sketcher.Constraint("Coincident", 0, 2, 1, 1),
    Sketcher.Constraint("Coincident", 1, 2, 2, 1),
    Sketcher.Constraint("Coincident", 2, 2, 3, 1),
    Sketcher.Constraint("Coincident", 3, 2, 0, 1),
    Sketcher.Constraint("Vertical", 0),
    Sketcher.Constraint("Horizontal", 1),
    Sketcher.Constraint("Vertical", 2),
    Sketcher.Constraint("Horizontal", 3),
    Sketcher.Constraint("Equal", 3, 0),
    Sketcher.Constraint("DistanceX", 1, 1, 1, 2, 0.55),
    Sketcher.Constraint("DistanceX", -1, 1, 0, 2, 23.985),
    Sketcher.Constraint("DistanceY", 0, 2, -1, 1, 0.275),
])
sketch13.setExpression("Constraints[9]", "Params.sketch13_width")
pad12 = doc.addObject("PartDesign::Pad", "Pad011")
body11.addObject(pad12)
pad12.Profile = sketch13
pad12.setExpression("Length", "Params.pad12_length")
body12 = doc.addObject("PartDesign::Body", "Body011")

sketch14 = doc.addObject("Sketcher::SketchObject", "Sketch013")
body12.addObject(sketch14)
sketch14.AttachmentSupport = (doc.getObject("XZ_Plane011"), [""])
sketch14.MapMode = "FlatFace"
sketch14.addGeometry([
    Part.LineSegment(Vector(26.525, 0.275, 0), Vector(26.525, -0.275, 0)),
    Part.LineSegment(Vector(26.525, -0.275, 0), Vector(27.075, -0.275, 0)),
    Part.LineSegment(Vector(27.075, -0.275, 0), Vector(27.075, 0.275, 0)),
    Part.LineSegment(Vector(27.075, 0.275, 0), Vector(26.525, 0.275, 0)),
], False)
sketch14.addConstraint([
    Sketcher.Constraint("Coincident", 0, 2, 1, 1),
    Sketcher.Constraint("Coincident", 1, 2, 2, 1),
    Sketcher.Constraint("Coincident", 2, 2, 3, 1),
    Sketcher.Constraint("Coincident", 3, 2, 0, 1),
    Sketcher.Constraint("Vertical", 0),
    Sketcher.Constraint("Horizontal", 1),
    Sketcher.Constraint("Vertical", 2),
    Sketcher.Constraint("Horizontal", 3),
    Sketcher.Constraint("Equal", 3, 0),
    Sketcher.Constraint("DistanceX", 1, 1, 1, 2, 0.55),
    Sketcher.Constraint("DistanceX", -1, 1, 0, 2, 26.525),
    Sketcher.Constraint("DistanceY", 0, 2, -1, 1, 0.275),
])
sketch14.setExpression("Constraints[9]", "Params.sketch14_width")
pad13 = doc.addObject("PartDesign::Pad", "Pad012")
body12.addObject(pad13)
pad13.Profile = sketch14
pad13.setExpression("Length", "Params.pad13_length")
body13 = doc.addObject("PartDesign::Body", "Body012")

sketch15 = doc.addObject("Sketcher::SketchObject", "Sketch014")
body13.addObject(sketch15)
sketch15.AttachmentSupport = (doc.getObject("XZ_Plane012"), [""])
sketch15.MapMode = "FlatFace"
sketch15.addGeometry([
    Part.LineSegment(Vector(29.065, 0.275, 0), Vector(29.065, -0.275, 0)),
    Part.LineSegment(Vector(29.065, -0.275, 0), Vector(29.615, -0.275, 0)),
    Part.LineSegment(Vector(29.615, -0.275, 0), Vector(29.615, 0.275, 0)),
    Part.LineSegment(Vector(29.615, 0.275, 0), Vector(29.065, 0.275, 0)),
], False)
sketch15.addConstraint([
    Sketcher.Constraint("Coincident", 0, 2, 1, 1),
    Sketcher.Constraint("Coincident", 1, 2, 2, 1),
    Sketcher.Constraint("Coincident", 2, 2, 3, 1),
    Sketcher.Constraint("Coincident", 3, 2, 0, 1),
    Sketcher.Constraint("Vertical", 0),
    Sketcher.Constraint("Horizontal", 1),
    Sketcher.Constraint("Vertical", 2),
    Sketcher.Constraint("Horizontal", 3),
    Sketcher.Constraint("Equal", 3, 0),
    Sketcher.Constraint("DistanceX", 1, 1, 1, 2, 0.55),
    Sketcher.Constraint("DistanceX", -1, 1, 0, 2, 29.065),
    Sketcher.Constraint("DistanceY", 0, 2, -1, 1, 0.275),
])
sketch15.setExpression("Constraints[9]", "Params.sketch15_width")
pad14 = doc.addObject("PartDesign::Pad", "Pad013")
body13.addObject(pad14)
pad14.Profile = sketch15
pad14.setExpression("Length", "Params.pad14_length")

doc.recompute()
